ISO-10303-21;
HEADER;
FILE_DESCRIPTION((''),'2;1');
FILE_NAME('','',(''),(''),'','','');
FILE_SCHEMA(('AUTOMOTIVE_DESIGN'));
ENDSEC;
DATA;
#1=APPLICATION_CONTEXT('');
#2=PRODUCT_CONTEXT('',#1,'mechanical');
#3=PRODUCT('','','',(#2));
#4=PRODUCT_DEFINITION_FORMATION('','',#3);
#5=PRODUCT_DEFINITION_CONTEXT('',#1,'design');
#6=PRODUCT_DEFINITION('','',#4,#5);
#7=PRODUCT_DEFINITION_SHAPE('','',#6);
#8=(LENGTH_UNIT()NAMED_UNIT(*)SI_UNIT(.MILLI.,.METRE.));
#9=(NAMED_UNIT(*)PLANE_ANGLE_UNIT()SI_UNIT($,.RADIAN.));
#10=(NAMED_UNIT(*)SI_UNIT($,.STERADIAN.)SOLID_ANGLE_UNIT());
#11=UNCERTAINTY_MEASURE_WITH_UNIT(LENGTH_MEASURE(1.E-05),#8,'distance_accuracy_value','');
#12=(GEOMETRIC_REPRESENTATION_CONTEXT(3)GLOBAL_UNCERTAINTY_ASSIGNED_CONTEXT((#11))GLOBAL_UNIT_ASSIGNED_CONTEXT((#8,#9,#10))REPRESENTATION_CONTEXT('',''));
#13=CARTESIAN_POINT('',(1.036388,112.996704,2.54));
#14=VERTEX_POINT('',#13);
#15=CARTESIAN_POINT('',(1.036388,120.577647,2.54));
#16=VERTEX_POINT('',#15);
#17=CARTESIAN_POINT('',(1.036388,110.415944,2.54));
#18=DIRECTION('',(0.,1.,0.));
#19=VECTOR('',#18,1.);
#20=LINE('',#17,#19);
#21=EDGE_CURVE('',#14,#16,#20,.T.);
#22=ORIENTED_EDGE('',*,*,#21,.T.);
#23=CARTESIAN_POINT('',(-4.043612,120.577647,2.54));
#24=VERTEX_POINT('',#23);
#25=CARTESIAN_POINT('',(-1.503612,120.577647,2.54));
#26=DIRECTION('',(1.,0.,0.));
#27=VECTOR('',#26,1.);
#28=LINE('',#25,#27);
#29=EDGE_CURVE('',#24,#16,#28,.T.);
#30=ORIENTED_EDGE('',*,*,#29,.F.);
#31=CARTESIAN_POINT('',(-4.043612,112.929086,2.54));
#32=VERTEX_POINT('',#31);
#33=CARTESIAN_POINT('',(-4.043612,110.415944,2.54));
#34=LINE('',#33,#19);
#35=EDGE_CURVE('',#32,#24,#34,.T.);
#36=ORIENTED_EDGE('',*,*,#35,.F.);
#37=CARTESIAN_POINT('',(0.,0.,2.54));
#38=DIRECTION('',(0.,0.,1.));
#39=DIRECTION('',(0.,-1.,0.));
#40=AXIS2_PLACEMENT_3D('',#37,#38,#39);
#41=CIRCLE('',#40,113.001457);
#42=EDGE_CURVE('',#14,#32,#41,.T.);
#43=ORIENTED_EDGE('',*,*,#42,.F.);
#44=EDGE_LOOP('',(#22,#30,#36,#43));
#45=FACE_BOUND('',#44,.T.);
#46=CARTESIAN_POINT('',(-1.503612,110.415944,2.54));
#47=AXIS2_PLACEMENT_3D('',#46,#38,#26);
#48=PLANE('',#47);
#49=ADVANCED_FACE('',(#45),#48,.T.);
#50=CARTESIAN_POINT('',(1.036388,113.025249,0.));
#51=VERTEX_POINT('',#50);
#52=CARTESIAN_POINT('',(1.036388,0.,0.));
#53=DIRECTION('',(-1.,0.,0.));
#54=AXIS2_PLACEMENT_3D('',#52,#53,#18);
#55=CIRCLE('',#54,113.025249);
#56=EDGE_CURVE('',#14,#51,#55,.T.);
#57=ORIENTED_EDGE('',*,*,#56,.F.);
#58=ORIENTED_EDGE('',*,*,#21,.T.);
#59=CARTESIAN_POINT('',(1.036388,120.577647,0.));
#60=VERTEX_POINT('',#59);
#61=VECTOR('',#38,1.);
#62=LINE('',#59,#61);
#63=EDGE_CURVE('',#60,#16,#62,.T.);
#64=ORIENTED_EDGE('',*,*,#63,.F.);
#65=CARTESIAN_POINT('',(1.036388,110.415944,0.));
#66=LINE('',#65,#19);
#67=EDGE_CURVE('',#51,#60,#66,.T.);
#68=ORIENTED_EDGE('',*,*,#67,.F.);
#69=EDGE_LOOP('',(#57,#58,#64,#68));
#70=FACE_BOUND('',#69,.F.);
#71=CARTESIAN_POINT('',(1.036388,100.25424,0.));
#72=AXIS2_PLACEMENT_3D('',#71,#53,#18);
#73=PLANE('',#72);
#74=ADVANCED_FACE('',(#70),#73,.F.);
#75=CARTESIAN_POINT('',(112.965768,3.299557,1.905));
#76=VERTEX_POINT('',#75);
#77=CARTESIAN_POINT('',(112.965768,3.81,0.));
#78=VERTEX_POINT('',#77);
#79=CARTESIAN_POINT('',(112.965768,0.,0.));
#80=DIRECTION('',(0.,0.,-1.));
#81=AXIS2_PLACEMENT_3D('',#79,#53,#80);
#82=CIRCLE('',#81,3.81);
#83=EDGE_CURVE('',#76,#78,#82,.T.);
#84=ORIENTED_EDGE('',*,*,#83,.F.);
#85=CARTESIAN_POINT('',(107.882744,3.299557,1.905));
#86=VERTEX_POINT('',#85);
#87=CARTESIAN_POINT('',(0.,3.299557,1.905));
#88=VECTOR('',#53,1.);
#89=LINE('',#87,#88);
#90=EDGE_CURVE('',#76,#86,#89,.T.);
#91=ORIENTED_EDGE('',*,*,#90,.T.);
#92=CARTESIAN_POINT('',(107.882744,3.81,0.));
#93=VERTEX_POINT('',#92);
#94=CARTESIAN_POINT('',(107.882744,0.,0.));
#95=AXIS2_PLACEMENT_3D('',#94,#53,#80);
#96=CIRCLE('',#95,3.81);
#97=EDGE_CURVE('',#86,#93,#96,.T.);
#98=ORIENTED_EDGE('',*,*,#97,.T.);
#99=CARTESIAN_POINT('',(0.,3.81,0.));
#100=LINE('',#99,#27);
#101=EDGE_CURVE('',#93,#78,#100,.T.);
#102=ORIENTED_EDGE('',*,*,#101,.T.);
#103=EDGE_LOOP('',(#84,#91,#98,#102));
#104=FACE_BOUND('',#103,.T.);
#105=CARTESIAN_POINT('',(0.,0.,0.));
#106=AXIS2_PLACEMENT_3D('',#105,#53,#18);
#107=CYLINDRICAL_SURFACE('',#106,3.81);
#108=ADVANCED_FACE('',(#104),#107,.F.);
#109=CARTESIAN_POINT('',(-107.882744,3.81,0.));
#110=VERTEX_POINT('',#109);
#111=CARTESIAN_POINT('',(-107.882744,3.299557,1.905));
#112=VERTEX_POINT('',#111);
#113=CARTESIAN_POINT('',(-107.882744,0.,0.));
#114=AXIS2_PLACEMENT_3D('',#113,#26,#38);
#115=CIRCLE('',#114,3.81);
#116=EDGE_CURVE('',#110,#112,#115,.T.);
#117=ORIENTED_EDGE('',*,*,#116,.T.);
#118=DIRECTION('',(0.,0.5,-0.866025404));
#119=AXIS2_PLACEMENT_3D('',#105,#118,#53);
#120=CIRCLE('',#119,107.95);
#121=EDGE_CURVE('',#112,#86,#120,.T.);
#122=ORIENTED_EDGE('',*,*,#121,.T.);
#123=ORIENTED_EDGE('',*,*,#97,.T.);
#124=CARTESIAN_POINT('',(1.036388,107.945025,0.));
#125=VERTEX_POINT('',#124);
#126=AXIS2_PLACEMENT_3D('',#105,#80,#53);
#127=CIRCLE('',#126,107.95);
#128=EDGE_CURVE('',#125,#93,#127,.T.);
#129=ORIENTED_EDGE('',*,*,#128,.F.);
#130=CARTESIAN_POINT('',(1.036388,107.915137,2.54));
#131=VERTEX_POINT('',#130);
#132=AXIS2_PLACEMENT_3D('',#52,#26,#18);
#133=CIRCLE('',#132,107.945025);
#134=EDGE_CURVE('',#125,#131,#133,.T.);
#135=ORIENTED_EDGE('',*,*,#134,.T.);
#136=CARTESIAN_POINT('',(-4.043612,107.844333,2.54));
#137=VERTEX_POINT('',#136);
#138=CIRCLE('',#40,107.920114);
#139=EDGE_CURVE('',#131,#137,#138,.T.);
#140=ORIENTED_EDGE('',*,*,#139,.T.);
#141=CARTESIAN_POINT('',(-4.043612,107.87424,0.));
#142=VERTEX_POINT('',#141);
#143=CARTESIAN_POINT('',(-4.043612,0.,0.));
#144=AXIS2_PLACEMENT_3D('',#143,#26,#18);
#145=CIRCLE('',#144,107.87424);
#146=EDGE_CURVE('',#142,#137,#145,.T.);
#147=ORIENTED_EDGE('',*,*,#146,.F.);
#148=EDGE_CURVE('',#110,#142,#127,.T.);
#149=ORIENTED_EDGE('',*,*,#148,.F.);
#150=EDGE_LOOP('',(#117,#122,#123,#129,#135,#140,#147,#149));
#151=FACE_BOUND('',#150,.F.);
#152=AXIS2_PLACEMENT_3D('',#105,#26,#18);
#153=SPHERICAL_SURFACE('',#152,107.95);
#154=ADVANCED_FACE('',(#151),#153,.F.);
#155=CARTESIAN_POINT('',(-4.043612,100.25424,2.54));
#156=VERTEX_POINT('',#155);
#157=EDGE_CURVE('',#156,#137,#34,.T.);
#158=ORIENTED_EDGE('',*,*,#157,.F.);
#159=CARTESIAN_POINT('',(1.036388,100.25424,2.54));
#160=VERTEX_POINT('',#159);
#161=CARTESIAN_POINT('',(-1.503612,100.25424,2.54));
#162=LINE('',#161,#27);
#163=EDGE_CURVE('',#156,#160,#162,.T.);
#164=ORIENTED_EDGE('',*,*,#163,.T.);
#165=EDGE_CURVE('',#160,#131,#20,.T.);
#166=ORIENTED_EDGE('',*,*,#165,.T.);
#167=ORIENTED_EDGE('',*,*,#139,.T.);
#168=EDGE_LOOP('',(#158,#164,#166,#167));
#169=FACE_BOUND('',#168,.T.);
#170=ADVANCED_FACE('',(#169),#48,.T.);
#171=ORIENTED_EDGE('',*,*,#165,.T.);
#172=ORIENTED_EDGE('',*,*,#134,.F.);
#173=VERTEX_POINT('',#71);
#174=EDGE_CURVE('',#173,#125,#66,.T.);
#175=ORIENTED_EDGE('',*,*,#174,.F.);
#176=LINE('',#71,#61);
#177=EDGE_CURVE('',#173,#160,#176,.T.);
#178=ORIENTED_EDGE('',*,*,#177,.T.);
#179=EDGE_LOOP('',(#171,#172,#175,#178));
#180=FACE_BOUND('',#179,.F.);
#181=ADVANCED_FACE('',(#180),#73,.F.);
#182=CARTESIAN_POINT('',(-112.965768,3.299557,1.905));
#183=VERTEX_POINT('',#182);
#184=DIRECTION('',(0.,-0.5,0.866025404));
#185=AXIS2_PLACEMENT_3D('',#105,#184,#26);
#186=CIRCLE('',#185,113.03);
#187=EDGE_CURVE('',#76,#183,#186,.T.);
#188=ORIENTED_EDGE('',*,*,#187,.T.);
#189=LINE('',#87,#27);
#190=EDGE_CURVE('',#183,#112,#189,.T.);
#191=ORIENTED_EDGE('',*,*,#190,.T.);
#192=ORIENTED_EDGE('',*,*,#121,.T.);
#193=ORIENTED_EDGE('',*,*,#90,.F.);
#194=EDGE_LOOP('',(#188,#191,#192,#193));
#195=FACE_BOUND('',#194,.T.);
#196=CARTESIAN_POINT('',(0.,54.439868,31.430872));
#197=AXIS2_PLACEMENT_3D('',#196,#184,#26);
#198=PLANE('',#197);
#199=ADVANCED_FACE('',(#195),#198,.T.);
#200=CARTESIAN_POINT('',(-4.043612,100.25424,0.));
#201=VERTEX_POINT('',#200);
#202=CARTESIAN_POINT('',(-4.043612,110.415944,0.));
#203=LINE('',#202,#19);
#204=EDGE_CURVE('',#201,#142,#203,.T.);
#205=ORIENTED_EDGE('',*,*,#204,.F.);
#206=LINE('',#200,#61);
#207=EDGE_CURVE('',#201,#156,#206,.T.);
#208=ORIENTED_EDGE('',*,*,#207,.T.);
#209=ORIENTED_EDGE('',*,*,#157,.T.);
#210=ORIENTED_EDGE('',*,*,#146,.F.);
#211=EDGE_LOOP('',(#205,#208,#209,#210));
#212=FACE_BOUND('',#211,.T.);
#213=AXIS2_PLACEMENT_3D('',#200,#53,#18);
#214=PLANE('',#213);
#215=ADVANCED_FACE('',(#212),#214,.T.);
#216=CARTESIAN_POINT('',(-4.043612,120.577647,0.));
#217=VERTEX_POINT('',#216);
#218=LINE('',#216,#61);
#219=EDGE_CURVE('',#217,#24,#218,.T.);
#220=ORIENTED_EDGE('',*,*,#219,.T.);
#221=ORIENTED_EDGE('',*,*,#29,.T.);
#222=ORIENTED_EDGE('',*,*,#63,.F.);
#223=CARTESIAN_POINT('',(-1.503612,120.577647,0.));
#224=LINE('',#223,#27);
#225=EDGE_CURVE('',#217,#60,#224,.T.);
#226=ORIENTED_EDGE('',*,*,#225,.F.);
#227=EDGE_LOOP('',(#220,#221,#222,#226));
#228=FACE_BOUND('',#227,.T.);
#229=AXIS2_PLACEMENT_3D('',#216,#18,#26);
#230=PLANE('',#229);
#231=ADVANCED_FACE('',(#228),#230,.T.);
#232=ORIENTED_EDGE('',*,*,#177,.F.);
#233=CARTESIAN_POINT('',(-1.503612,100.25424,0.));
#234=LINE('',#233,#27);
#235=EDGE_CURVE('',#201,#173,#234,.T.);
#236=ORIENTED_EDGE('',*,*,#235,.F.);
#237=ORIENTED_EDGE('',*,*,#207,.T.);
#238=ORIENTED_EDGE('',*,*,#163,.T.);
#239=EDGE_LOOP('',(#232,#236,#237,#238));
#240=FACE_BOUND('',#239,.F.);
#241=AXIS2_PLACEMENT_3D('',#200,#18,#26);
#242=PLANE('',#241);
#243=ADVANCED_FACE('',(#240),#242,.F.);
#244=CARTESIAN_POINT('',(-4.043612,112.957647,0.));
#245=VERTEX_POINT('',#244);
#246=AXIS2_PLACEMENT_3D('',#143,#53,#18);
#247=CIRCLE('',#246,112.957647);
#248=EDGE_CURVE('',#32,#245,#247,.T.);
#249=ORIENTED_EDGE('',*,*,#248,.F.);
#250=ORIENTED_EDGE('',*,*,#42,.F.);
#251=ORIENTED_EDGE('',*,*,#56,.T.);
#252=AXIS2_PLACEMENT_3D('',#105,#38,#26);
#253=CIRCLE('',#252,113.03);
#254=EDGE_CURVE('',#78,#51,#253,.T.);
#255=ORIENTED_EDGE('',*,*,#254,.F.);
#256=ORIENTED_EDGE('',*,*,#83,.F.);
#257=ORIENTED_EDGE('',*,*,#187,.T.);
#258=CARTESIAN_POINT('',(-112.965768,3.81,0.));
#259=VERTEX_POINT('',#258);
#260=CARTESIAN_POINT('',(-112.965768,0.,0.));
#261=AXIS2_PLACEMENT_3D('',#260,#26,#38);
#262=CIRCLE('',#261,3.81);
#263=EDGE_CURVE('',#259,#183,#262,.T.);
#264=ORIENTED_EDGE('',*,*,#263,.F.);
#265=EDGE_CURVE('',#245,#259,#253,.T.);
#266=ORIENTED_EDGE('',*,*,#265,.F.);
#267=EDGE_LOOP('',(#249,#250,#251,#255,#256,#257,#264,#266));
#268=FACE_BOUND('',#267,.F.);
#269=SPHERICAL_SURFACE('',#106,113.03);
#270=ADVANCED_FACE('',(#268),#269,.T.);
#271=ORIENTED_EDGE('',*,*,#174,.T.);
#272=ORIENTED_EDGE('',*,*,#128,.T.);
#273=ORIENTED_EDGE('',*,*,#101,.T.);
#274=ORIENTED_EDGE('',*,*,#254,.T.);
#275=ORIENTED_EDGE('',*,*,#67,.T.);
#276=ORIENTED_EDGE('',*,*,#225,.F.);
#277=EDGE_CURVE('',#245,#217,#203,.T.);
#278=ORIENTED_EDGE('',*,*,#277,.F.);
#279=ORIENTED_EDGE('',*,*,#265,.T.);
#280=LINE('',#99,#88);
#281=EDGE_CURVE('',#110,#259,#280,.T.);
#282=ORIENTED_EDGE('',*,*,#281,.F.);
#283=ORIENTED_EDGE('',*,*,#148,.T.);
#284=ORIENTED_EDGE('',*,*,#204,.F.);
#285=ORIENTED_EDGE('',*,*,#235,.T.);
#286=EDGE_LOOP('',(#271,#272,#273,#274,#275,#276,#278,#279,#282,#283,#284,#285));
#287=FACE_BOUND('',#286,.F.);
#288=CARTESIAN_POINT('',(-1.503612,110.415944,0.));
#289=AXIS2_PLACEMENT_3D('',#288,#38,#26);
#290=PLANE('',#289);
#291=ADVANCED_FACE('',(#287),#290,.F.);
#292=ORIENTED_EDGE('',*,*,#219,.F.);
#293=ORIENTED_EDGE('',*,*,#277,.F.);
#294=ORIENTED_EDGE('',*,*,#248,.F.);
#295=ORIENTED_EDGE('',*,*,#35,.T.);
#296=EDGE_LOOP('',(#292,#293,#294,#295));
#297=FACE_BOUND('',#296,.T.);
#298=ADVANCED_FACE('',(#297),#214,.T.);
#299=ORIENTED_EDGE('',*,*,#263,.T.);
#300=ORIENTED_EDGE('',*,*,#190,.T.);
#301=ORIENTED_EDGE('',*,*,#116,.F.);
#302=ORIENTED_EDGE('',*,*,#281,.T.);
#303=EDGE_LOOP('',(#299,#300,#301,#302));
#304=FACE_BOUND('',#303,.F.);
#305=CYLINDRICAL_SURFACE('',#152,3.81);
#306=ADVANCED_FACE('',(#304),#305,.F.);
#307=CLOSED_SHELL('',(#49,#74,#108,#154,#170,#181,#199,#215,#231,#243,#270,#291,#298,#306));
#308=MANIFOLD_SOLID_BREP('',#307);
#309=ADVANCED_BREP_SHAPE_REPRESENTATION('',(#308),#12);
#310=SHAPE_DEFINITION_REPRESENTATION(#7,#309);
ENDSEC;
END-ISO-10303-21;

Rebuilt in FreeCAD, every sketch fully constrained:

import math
import FreeCAD as App
import Part
import Sketcher

V = App.Vector
Q = App.Units.Quantity

doc = App.newDocument("Part")
body = doc.addObject("PartDesign::Body", "Body")

sketch1 = body.newObject("Sketcher::SketchObject", "Sketch")
sketch1.AttachmentSupport = (doc.getObject("XY_Plane"), [""])
sketch1.MapMode = "FlatFace"
sketch1.addGeometry([
    Part.LineSegment(V(-113, 0, 0), V(-108, 0, 0)),
    Part.ArcOfCircle(Part.Circle(V(0, 0, 0), V(0, 0, 1), 108), math.radians(0), math.radians(180)),
    Part.LineSegment(V(108, 0, 0), V(113, 0, 0)),
    Part.ArcOfCircle(Part.Circle(V(0, 0, 0), V(0, 0, 1), 113), math.radians(0), math.radians(180)),
], False)
sketch1.addConstraint([
    Sketcher.Constraint("Coincident", 0, 2, 1, 2),
    Sketcher.Constraint("Coincident", 1, 1, 2, 1),
    Sketcher.Constraint("Coincident", 2, 2, 3, 1),
    Sketcher.Constraint("Coincident", 3, 2, 0, 1),
    Sketcher.Constraint("Horizontal", 0),
    Sketcher.Constraint("Horizontal", 2),
    Sketcher.Constraint("Coincident", 1, 3, -1, 1),
    Sketcher.Constraint("Coincident", 3, 3, -1, 1),
    Sketcher.Constraint("PointOnObject", 0, 2, -1),
    Sketcher.Constraint("PointOnObject", 1, 1, -1),
    Sketcher.Constraint("Radius", 1, Q("4.25 in")),
    Sketcher.Constraint("Radius", 3, Q("4.45 in")),
])
revolution = body.newObject("PartDesign::Revolution", "Revolution")
revolution.Profile = sketch1
revolution.ReferenceAxis = (sketch1, ["H_Axis"])
revolution.Angle = 30

sketch2 = body.newObject("Sketcher::SketchObject", "Sketch001")
sketch2.AttachmentSupport = (doc.getObject("YZ_Plane"), [""])
sketch2.MapMode = "FlatFace"
sketch2.addGeometry(Part.Circle(V(0, 0, 0), V(0, 0, 1), 3.8), False)
sketch2.addConstraint([
    Sketcher.Constraint("Coincident", 0, 3, -1, 1),
    Sketcher.Constraint("Diameter", 0, Q("0.3 in")),
])
pocket1 = body.newObject("PartDesign::Pocket", "Pocket")
pocket1.Profile = sketch2
pocket1.Type = "ThroughAll"
pocket1.Midplane = True

sketch3 = body.newObject("Sketcher::SketchObject", "Sketch002")
sketch3.AttachmentSupport = (doc.getObject("XY_Plane"), [""])
sketch3.MapMode = "FlatFace"
sketch3.addGeometry([
    Part.LineSegment(V(-4, 121, 0), V(-4, 100, 0)),
    Part.LineSegment(V(-4, 100, 0), V(1, 100, 0)),
    Part.LineSegment(V(1, 100, 0), V(1, 121, 0)),
    Part.LineSegment(V(1, 121, 0), V(-4, 121, 0)),
], False)
sketch3.addConstraint([
    Sketcher.Constraint("Coincident", 0, 2, 1, 1),
    Sketcher.Constraint("Coincident", 1, 2, 2, 1),
    Sketcher.Constraint("Coincident", 2, 2, 3, 1),
    Sketcher.Constraint("Coincident", 3, 2, 0, 1),
    Sketcher.Constraint("Vertical", 0),
    Sketcher.Constraint("Horizontal", 1),
    Sketcher.Constraint("Vertical", 2),
    Sketcher.Constraint("Horizontal", 3),
    Sketcher.Constraint("DistanceX", 1, 1, 1, 2, Q("0.2 in")),
    Sketcher.Constraint("DistanceY", 0, 2, 0, 1, Q("20.323407 mm")),
    Sketcher.Constraint("DistanceY", -1, 1, 0, 2, Q("100.25424 mm")),
    Sketcher.Constraint("DistanceX", 0, 2, -1, 1, Q("4.043612 mm")),
])
pad1 = body.newObject("PartDesign::Pad", "Pad")
pad1.Profile = sketch3
pad1.Length = Q("0.1 in")

doc.recompute()
